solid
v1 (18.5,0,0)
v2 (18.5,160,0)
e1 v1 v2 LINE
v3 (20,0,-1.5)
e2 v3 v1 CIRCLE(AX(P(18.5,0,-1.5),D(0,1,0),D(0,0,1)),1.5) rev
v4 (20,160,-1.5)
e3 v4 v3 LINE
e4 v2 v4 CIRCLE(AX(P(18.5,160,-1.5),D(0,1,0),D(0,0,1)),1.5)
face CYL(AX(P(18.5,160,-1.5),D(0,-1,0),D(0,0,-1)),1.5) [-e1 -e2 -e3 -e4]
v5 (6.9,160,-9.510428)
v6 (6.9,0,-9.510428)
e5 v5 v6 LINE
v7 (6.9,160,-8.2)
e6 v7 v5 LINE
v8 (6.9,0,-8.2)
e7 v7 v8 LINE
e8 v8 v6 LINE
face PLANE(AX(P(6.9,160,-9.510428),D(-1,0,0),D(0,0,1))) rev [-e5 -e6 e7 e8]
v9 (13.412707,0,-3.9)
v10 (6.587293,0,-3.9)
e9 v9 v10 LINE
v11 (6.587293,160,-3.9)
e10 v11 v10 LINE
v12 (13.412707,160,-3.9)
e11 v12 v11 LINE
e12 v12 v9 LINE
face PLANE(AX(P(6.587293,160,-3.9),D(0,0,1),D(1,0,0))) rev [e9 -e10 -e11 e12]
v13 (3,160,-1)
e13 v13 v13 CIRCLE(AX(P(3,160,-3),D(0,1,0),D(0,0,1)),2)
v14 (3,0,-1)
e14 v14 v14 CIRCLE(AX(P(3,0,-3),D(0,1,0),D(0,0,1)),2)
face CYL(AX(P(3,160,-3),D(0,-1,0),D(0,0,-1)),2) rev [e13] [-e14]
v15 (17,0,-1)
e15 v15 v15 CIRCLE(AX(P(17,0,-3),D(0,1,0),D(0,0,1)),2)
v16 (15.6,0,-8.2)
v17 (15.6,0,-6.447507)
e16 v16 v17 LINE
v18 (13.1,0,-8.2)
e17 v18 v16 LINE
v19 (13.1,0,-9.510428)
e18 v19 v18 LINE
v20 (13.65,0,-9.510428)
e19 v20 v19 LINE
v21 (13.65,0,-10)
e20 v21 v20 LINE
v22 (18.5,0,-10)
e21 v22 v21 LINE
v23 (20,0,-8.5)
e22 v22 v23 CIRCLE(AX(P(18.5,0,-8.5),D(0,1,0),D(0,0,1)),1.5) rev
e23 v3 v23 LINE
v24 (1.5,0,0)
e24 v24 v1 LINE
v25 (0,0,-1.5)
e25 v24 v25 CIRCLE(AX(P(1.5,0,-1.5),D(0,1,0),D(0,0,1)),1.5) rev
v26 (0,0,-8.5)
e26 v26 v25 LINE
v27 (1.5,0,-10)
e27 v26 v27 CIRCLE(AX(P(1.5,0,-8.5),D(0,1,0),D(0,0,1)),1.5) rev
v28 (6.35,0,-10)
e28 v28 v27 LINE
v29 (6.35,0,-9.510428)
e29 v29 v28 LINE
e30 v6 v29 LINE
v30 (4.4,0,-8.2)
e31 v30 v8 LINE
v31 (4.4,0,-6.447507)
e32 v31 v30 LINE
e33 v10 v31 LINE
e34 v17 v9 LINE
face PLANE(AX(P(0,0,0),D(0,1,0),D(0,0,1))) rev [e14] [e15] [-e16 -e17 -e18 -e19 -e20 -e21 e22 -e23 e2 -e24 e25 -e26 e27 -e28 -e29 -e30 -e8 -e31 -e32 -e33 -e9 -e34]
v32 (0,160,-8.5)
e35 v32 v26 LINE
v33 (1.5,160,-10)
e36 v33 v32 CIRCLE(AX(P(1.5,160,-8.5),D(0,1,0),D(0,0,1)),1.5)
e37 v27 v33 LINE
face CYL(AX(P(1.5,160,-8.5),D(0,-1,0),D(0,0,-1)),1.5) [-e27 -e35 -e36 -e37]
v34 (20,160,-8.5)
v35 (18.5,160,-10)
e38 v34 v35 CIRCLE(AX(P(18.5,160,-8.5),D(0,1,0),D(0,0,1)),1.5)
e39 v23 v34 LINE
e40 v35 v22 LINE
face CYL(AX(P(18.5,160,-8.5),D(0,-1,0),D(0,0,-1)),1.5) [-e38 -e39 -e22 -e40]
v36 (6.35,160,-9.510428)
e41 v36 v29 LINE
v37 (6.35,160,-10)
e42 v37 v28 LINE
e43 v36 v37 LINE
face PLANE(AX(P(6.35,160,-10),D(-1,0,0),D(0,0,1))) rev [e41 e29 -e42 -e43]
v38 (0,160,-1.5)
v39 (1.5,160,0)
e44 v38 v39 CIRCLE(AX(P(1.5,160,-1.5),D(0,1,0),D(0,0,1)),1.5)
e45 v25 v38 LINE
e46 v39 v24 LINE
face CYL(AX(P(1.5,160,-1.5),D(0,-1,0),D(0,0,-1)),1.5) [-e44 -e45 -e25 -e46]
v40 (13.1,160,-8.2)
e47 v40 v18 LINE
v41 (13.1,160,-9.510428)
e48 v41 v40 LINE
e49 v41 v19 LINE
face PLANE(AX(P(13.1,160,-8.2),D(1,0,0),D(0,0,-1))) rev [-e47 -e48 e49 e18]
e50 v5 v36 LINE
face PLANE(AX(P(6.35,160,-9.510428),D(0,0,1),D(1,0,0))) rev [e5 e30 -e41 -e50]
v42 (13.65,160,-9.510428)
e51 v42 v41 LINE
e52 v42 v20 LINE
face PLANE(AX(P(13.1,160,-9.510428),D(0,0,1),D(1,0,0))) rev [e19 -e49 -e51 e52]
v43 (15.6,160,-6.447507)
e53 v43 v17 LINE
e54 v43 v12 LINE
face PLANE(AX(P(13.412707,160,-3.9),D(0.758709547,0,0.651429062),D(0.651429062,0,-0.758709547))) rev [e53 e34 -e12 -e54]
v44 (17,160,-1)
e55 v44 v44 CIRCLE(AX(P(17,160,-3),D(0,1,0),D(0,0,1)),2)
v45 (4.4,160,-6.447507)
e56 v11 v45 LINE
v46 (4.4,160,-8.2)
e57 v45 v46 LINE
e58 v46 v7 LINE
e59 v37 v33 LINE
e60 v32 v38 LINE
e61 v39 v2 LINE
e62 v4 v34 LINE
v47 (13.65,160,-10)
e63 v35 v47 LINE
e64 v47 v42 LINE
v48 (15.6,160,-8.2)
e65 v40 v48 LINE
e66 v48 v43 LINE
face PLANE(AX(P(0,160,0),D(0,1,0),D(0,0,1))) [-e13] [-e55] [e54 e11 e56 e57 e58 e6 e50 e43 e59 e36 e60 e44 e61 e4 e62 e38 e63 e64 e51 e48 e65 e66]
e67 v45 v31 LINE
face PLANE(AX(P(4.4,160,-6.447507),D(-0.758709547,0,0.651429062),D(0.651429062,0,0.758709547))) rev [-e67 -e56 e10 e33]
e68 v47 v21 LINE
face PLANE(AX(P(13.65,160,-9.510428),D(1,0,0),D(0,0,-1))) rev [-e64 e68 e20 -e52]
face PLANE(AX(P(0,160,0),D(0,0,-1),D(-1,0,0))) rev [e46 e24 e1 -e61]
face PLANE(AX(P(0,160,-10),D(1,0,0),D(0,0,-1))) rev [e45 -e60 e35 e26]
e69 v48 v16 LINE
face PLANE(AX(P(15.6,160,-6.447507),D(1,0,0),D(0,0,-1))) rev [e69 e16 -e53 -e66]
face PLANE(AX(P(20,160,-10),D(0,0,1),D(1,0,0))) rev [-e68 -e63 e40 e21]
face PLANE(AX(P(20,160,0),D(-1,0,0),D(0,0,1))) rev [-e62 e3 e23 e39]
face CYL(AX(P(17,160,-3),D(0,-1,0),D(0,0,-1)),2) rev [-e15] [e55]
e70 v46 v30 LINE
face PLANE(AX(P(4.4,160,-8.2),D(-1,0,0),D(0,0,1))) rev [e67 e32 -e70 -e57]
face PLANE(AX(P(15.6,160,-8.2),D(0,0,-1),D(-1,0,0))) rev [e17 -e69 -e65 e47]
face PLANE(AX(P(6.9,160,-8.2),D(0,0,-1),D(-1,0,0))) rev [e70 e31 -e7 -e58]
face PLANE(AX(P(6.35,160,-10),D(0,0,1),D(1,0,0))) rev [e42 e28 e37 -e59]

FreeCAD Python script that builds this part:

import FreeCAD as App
import Part
import Sketcher
from FreeCAD import Vector


def edges_at(feature, points):
    """Names of the edges that pass closest to the given points."""
    edges = feature.Shape.Edges
    near = lambda p: min(range(len(edges)), key=lambda i: edges[i].distToShape(Part.Vertex(*p))[0])
    return sorted({f"Edge{near(p) + 1}" for p in points})


def add_polygon(sketch, points):
    """Adds a closed chain of lines whose ends are joined by coincident constraints."""
    first, n = sketch.GeometryCount, len(points)
    for a, b in zip(points, points[1:] + points[:1]):
        sketch.addGeometry(Part.LineSegment(App.Vector(*a, 0), App.Vector(*b, 0)), False)
    for i in range(n):
        sketch.addConstraint(Sketcher.Constraint("Coincident", first + i, 2, first + (i + 1) % n, 1))

doc = App.newDocument("Part")
body = doc.addObject("PartDesign::Body", "Body")

# Sketch on XZ plane
sketch1 = body.newObject("Sketcher::SketchObject", "Sketch")
sketch1.AttachmentSupport = (doc.getObject("XZ_Plane"), [""])
sketch1.MapMode = "FlatFace"
add_polygon(sketch1, [(0, 0), (20, 0), (20, -10), (13.65, -10), (13.65, -9.51), (13.1, -9.51), (13.1, -8.2), (15.6, -8.2), (15.6, -6.45), (13.41, -3.9), (6.59, -3.9), (4.4, -6.45), (4.4, -8.2), (6.9, -8.2), (6.9, -9.51), (6.35, -9.51), (6.35, -10), (0, -10)])  # lines 0-17
sketch1.addGeometry(Part.Circle(Vector(3, -3, 0), Vector(0, 0, 1), 2), False)  # 18
sketch1.addGeometry(Part.Circle(Vector(17, -3, 0), Vector(0, 0, 1), 2), False)  # 19
sketch1.addConstraint([
    Sketcher.Constraint("Horizontal", 0),
    Sketcher.Constraint("Vertical", 1),
    Sketcher.Constraint("Horizontal", 2),
    Sketcher.Constraint("Vertical", 3),
    Sketcher.Constraint("Horizontal", 4),
    Sketcher.Constraint("Vertical", 5),
    Sketcher.Constraint("Horizontal", 6),
    Sketcher.Constraint("Vertical", 7),
    Sketcher.Constraint("Horizontal", 9),
    Sketcher.Constraint("Vertical", 11),
    Sketcher.Constraint("Horizontal", 12),
    Sketcher.Constraint("Vertical", 13),
    Sketcher.Constraint("Horizontal", 14),
    Sketcher.Constraint("Vertical", 15),
    Sketcher.Constraint("Horizontal", 16),
    Sketcher.Constraint("Vertical", 17),
    Sketcher.Constraint("Coincident", 17, 2, -1, 1),
    Sketcher.Constraint("Equal", 18, 19),
    Sketcher.Constraint("Horizontal", 18, 3, 19, 3),
    Sketcher.Constraint("Horizontal", 7, 2, 10, 2),
    Sketcher.Constraint("Horizontal", 6, 2, 11, 2),
    Sketcher.Constraint("Horizontal", 4, 2, 13, 2),
    Sketcher.Constraint("Horizontal", 2, 2, 15, 2),
    Sketcher.Constraint("Equal", 6, 12),
    Sketcher.Constraint("Equal", 4, 14),
    Sketcher.Constraint("Equal", 2, 16),
    Sketcher.Constraint("Equal", 8, 10),
    Sketcher.Constraint("Diameter", 18, 4.0),
    Sketcher.Constraint("DistanceX", 0, 1, 0, 2, 20.0),
    Sketcher.Constraint("DistanceY", 1, 2, 1, 1, 10.0),
    Sketcher.Constraint("DistanceX", 6, 1, 6, 2, 2.5),
    Sketcher.Constraint("DistanceX", -1, 1, 18, 3, 3.0),
    Sketcher.Constraint("DistanceY", 18, 3, -1, 1, 3.0),
    Sketcher.Constraint("DistanceX", -1, 1, 19, 3, 17.0),
    Sketcher.Constraint("DistanceX", 2, 2, 2, 1, 6.35),
    Sketcher.Constraint("DistanceX", 4, 2, 4, 1, 0.55),
    Sketcher.Constraint("DistanceY", 5, 2, -1, 1, 8.2),
    Sketcher.Constraint("DistanceY", 8, 2, -1, 1, 3.9),
    Sketcher.Constraint("DistanceX", 9, 2, 9, 1, 6.825414),
    Sketcher.Constraint("DistanceY", 3, 1, 3, 2, 0.489572),
    Sketcher.Constraint("DistanceY", 7, 1, 7, 2, 1.752493),
])
pad1 = body.newObject("PartDesign::Pad", "Pad")
pad1.Profile = sketch1
pad1.Length = 160
pad1.Reversed = True
doc.recompute()

fillet = body.newObject("PartDesign::Fillet", "Fillet")
fillet.Base = (pad1, edges_at(pad1, [
    (0, 80, -10),
    (20, 80, -10),
    (20, 80, 0),
    (0, 80, 0),
]))
fillet.Radius = 1.5

doc.recompute()
